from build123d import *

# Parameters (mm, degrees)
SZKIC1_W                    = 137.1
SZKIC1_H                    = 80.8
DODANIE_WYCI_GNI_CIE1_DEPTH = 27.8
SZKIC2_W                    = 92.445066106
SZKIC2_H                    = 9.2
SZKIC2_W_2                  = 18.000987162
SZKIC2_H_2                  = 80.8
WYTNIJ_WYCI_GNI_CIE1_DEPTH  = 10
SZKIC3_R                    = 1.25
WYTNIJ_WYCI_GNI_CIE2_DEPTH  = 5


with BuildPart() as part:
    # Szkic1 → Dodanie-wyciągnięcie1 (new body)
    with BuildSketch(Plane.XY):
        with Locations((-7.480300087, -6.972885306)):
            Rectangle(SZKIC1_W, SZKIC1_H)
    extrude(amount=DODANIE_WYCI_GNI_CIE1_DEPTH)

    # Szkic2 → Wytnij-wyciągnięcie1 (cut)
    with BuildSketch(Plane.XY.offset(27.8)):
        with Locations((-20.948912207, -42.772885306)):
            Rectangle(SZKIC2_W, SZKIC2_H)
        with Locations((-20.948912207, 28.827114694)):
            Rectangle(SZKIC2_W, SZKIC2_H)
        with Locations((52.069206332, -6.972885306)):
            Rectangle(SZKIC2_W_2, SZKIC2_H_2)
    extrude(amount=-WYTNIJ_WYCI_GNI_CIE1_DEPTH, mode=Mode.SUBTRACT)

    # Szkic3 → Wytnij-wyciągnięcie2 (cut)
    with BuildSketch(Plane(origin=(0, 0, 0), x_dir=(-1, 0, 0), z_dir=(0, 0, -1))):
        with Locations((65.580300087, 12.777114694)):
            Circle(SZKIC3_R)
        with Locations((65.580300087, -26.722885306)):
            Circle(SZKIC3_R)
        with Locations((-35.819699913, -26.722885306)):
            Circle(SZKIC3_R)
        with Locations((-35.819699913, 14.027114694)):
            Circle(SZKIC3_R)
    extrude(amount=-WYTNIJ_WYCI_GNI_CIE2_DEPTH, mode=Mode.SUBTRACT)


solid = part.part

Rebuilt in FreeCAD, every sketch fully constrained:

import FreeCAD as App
import Part
import Sketcher
from FreeCAD import Vector

doc = App.newDocument("Part")
body = doc.addObject("PartDesign::Body", "Body")

sketch1 = body.newObject("Sketcher::SketchObject", "Sketch")
sketch1.AttachmentSupport = (doc.getObject("XY_Plane"), [""])
sketch1.MapMode = "FlatFace"
sketch1.addGeometry([
    Part.LineSegment(Vector(-76, 33, 0), Vector(-76, -47, 0)),
    Part.LineSegment(Vector(-76, -47, 0), Vector(61, -47, 0)),
    Part.LineSegment(Vector(61, -47, 0), Vector(61, 33, 0)),
    Part.LineSegment(Vector(61, 33, 0), Vector(-76, 33, 0)),
], False)
sketch1.addConstraint([
    Sketcher.Constraint("Coincident", 0, 2, 1, 1),
    Sketcher.Constraint("Coincident", 1, 2, 2, 1),
    Sketcher.Constraint("Coincident", 2, 2, 3, 1),
    Sketcher.Constraint("Coincident", 3, 2, 0, 1),
    Sketcher.Constraint("Vertical", 0),
    Sketcher.Constraint("Horizontal", 1),
    Sketcher.Constraint("Vertical", 2),
    Sketcher.Constraint("Horizontal", 3),
    Sketcher.Constraint("DistanceX", 1, 1, 1, 2, 137.1),
    Sketcher.Constraint("DistanceY", 0, 2, 0, 1, 80.8),
    Sketcher.Constraint("DistanceX", 0, 2, -1, 1, 76.0303),
    Sketcher.Constraint("DistanceY", 0, 2, -1, 1, 47.372885),
])
pad1 = body.newObject("PartDesign::Pad", "Pad")
pad1.Profile = sketch1
pad1.Length = 27.8

sketch2 = body.newObject("Sketcher::SketchObject", "Sketch001")
sketch2.AttachmentSupport = (doc.getObject("XY_Plane"), [""])
sketch2.MapMode = "FlatFace"
sketch2.AttachmentOffset = App.Placement(Vector(0, 0, 27.8), App.Rotation())
sketch2.addGeometry([
    Part.LineSegment(Vector(-67, -38, 0), Vector(-67, -47, 0)),
    Part.LineSegment(Vector(-67, -47, 0), Vector(25, -47, 0)),
    Part.LineSegment(Vector(25, -47, 0), Vector(25, -38, 0)),
    Part.LineSegment(Vector(25, -38, 0), Vector(-67, -38, 0)),
    Part.LineSegment(Vector(-67, 33, 0), Vector(-67, 24, 0)),
    Part.LineSegment(Vector(-67, 24, 0), Vector(25, 24, 0)),
    Part.LineSegment(Vector(25, 24, 0), Vector(25, 33, 0)),
    Part.LineSegment(Vector(25, 33, 0), Vector(-67, 33, 0)),
    Part.LineSegment(Vector(43, 33, 0), Vector(43, -47, 0)),
    Part.LineSegment(Vector(43, -47, 0), Vector(61, -47, 0)),
    Part.LineSegment(Vector(61, -47, 0), Vector(61, 33, 0)),
    Part.LineSegment(Vector(61, 33, 0), Vector(43, 33, 0)),
], False)
sketch2.addConstraint([
    Sketcher.Constraint("Coincident", 0, 2, 1, 1),
    Sketcher.Constraint("Coincident", 1, 2, 2, 1),
    Sketcher.Constraint("Coincident", 2, 2, 3, 1),
    Sketcher.Constraint("Coincident", 3, 2, 0, 1),
    Sketcher.Constraint("Coincident", 4, 2, 5, 1),
    Sketcher.Constraint("Coincident", 5, 2, 6, 1),
    Sketcher.Constraint("Coincident", 6, 2, 7, 1),
    Sketcher.Constraint("Coincident", 7, 2, 4, 1),
    Sketcher.Constraint("Coincident", 8, 2, 9, 1),
    Sketcher.Constraint("Coincident", 9, 2, 10, 1),
    Sketcher.Constraint("Coincident", 10, 2, 11, 1),
    Sketcher.Constraint("Coincident", 11, 2, 8, 1),
    Sketcher.Constraint("Vertical", 0),
    Sketcher.Constraint("Horizontal", 1),
    Sketcher.Constraint("Vertical", 2),
    Sketcher.Constraint("Horizontal", 3),
    Sketcher.Constraint("Vertical", 4),
    Sketcher.Constraint("Horizontal", 5),
    Sketcher.Constraint("Vertical", 6),
    Sketcher.Constraint("Horizontal", 7),
    Sketcher.Constraint("Vertical", 8),
    Sketcher.Constraint("Horizontal", 9),
    Sketcher.Constraint("Vertical", 10),
    Sketcher.Constraint("Horizontal", 11),
    Sketcher.Constraint("Horizontal", 1, 2, 8, 2),
    Sketcher.Constraint("Horizontal", 7, 2, 10, 2),
    Sketcher.Constraint("Vertical", 3, 2, 4, 2),
    Sketcher.Constraint("Vertical", 2, 2, 5, 2),
    Sketcher.Constraint("Equal", 2, 4),
    Sketcher.Constraint("DistanceY", 0, 2, 0, 1, 9.2),
    Sketcher.Constraint("DistanceY", 8, 2, 8, 1, 80.8),
    Sketcher.Constraint("DistanceX", -1, 1, 9, 2, 61.0697),
    Sketcher.Constraint("DistanceX", 1, 1, 1, 2, 92.445066),
    Sketcher.Constraint("DistanceX", 9, 1, 9, 2, 18.000987),
    Sketcher.Constraint("DistanceX", -1, 1, 1, 2, 25.273621),
    Sketcher.Constraint("DistanceY", 0, 2, -1, 1, 47.372885),
])
pocket1 = body.newObject("PartDesign::Pocket", "Pocket")
pocket1.Profile = sketch2
pocket1.Length = 10

sketch3 = body.newObject("Sketcher::SketchObject", "Sketch002")
sketch3.AttachmentSupport = (doc.getObject("XY_Plane"), [""])
sketch3.MapMode = "FlatFace"
sketch3.addGeometry([
    Part.Circle(Vector(-65.6, 12.8, 0), Vector(0, 0, 1), 1.2),
    Part.Circle(Vector(-65.6, -26.7, 0), Vector(0, 0, 1), 1.2),
    Part.Circle(Vector(35.8, -26.7, 0), Vector(0, 0, 1), 1.2),
    Part.Circle(Vector(35.8, 14, 0), Vector(0, 0, 1), 1.2),
], False)
sketch3.addConstraint([
    Sketcher.Constraint("Equal", 0, 1),
    Sketcher.Constraint("Equal", 1, 2),
    Sketcher.Constraint("Equal", 2, 3),
    Sketcher.Constraint("Horizontal", 1, 3, 2, 3),
    Sketcher.Constraint("Vertical", 0, 3, 1, 3),
    Sketcher.Constraint("Vertical", 2, 3, 3, 3),
    Sketcher.Constraint("Diameter", 0, 2.5),
    Sketcher.Constraint("DistanceY", 1, 3, 0, 3, 39.5),
    Sketcher.Constraint("DistanceX", 1, 3, 2, 3, 101.4),
    Sketcher.Constraint("DistanceY", 2, 3, 3, 3, 40.75),
    Sketcher.Constraint("DistanceX", 0, 3, -1, 1, 65.5803),
    Sketcher.Constraint("DistanceY", -1, 1, 0, 3, 12.777115),
])
pocket2 = body.newObject("PartDesign::Pocket", "Pocket001")
pocket2.Profile = sketch3
pocket2.Length = 5
pocket2.Reversed = True

doc.recompute()
